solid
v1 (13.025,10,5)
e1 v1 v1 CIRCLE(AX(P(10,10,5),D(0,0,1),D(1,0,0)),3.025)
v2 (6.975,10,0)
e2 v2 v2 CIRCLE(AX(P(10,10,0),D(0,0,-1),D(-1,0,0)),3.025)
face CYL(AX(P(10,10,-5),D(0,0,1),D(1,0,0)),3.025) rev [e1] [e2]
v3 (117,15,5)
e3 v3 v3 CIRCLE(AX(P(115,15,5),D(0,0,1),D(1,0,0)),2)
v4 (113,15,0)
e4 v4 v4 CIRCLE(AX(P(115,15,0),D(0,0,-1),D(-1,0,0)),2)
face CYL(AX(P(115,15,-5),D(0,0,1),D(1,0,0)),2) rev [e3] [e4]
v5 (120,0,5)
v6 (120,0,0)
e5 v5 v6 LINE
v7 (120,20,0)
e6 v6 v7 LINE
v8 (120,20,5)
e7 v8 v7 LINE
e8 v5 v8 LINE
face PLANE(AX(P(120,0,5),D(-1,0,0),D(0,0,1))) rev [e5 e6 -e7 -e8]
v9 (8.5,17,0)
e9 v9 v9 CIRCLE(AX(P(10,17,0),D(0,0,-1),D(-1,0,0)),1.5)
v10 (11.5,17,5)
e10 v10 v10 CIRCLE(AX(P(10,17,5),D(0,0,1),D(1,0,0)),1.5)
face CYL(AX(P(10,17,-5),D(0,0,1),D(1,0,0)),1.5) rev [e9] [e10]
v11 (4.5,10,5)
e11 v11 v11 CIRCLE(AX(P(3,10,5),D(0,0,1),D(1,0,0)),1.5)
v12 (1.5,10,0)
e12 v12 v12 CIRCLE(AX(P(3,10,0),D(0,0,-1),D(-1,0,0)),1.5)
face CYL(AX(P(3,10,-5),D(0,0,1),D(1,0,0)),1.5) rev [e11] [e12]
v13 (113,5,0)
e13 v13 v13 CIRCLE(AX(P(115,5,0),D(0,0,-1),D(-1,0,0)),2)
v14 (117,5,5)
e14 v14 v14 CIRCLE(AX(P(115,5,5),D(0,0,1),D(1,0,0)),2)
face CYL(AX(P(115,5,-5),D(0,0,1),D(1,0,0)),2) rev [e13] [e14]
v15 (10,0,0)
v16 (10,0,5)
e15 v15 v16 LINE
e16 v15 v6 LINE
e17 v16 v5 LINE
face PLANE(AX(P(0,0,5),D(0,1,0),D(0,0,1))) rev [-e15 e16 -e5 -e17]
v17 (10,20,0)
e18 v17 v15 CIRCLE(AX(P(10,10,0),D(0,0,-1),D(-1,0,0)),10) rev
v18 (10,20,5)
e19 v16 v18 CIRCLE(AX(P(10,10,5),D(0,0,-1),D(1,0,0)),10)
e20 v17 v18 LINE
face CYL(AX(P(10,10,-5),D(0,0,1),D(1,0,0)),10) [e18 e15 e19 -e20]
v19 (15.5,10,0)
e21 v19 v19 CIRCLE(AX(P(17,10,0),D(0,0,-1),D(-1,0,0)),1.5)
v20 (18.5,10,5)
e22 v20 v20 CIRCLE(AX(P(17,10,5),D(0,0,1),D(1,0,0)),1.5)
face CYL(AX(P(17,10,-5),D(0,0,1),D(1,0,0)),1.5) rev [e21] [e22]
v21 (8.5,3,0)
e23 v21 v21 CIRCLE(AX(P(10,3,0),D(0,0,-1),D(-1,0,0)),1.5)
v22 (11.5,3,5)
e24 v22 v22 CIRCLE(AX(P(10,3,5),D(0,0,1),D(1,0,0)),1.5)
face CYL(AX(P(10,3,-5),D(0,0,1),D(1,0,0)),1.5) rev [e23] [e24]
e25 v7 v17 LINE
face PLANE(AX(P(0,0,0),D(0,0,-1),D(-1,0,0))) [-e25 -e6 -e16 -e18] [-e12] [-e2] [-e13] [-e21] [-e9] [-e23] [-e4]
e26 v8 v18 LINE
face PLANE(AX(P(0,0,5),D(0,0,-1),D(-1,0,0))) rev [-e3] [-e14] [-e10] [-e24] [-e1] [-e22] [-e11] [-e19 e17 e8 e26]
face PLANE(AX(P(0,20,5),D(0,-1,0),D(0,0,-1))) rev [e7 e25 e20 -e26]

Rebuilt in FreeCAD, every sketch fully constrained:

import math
import FreeCAD as App
import Part
import Sketcher

V = App.Vector

doc = App.newDocument("Part")
body = doc.addObject("PartDesign::Body", "Body")

sketch1 = body.newObject("Sketcher::SketchObject", "Sketch")
sketch1.AttachmentSupport = (doc.getObject("XY_Plane"), [""])
sketch1.MapMode = "FlatFace"
sketch1.addGeometry([
    Part.LineSegment(V(0, 20, 0), V(0, 0, 0)),
    Part.LineSegment(V(0, 0, 0), V(120, 0, 0)),
    Part.LineSegment(V(120, 0, 0), V(120, 20, 0)),
    Part.LineSegment(V(120, 20, 0), V(0, 20, 0)),
], False)
sketch1.addConstraint([
    Sketcher.Constraint("Coincident", 0, 2, 1, 1),
    Sketcher.Constraint("Coincident", 1, 2, 2, 1),
    Sketcher.Constraint("Coincident", 2, 2, 3, 1),
    Sketcher.Constraint("Coincident", 3, 2, 0, 1),
    Sketcher.Constraint("Vertical", 0),
    Sketcher.Constraint("Horizontal", 1),
    Sketcher.Constraint("Vertical", 2),
    Sketcher.Constraint("Horizontal", 3),
    Sketcher.Constraint("Coincident", 0, 2, -1, 1),
    Sketcher.Constraint("DistanceX", 1, 1, 1, 2, 120.0),
    Sketcher.Constraint("DistanceY", 0, 2, 0, 1, 20.0),
])
pad1 = body.newObject("PartDesign::Pad", "Pad")
pad1.Profile = sketch1
pad1.Length = 5

sketch2 = body.newObject("Sketcher::SketchObject", "Sketch001")
sketch2.AttachmentSupport = (doc.getObject("XY_Plane"), [""])
sketch2.MapMode = "FlatFace"
sketch2.AttachmentOffset = App.Placement(V(0, 0, 5), App.Rotation())
sketch2.addGeometry([
    Part.Circle(V(10, 17, 0), V(0, 0, 1), 1.5),
    Part.Circle(V(17, 10, 0), V(0, 0, 1), 1.5),
    Part.Circle(V(10, 10, 0), V(0, 0, 1), 3.025),
    Part.Circle(V(10, 3, 0), V(0, 0, 1), 1.5),
    Part.Circle(V(3, 10, 0), V(0, 0, 1), 1.5),
], False)
sketch2.addConstraint([
    Sketcher.Constraint("Equal", 0, 1),
    Sketcher.Constraint("Equal", 1, 3),
    Sketcher.Constraint("Equal", 3, 4),
    Sketcher.Constraint("Horizontal", 1, 3, 2, 3),
    Sketcher.Constraint("Horizontal", 2, 3, 4, 3),
    Sketcher.Constraint("Vertical", 0, 3, 2, 3),
    Sketcher.Constraint("Vertical", 2, 3, 3, 3),
    Sketcher.Constraint("Diameter", 0, 3.0),
    Sketcher.Constraint("Diameter", 2, 6.05),
    Sketcher.Constraint("DistanceX", -1, 1, 0, 3, 10.0),
    Sketcher.Constraint("DistanceY", -1, 1, 0, 3, 17.0),
    Sketcher.Constraint("DistanceX", -1, 1, 1, 3, 17.0),
    Sketcher.Constraint("DistanceY", -1, 1, 1, 3, 10.0),
    Sketcher.Constraint("DistanceY", -1, 1, 3, 3, 3.0),
    Sketcher.Constraint("DistanceX", -1, 1, 4, 3, 3.0),
])
pocket1 = body.newObject("PartDesign::Pocket", "Pocket")
pocket1.Profile = sketch2
pocket1.Length = 10

sketch3 = body.newObject("Sketcher::SketchObject", "Sketch002")
sketch3.AttachmentSupport = (doc.getObject("XY_Plane"), [""])
sketch3.MapMode = "FlatFace"
sketch3.AttachmentOffset = App.Placement(V(0, 0, 5), App.Rotation())
sketch3.addGeometry([
    Part.LineSegment(V(10, 20, 0), V(10, 30, 0)),
    Part.ArcOfCircle(Part.Circle(V(10, 10, 0), V(0, 0, 1), 20), math.radians(90), math.radians(270)),
    Part.LineSegment(V(10, -10, 0), V(10, 0, 0)),
    Part.ArcOfCircle(Part.Circle(V(10, 10, 0), V(0, 0, 1), 10), math.radians(90), math.radians(270)),
], False)
sketch3.addConstraint([
    Sketcher.Constraint("Coincident", 0, 2, 1, 1),
    Sketcher.Constraint("Coincident", 1, 2, 2, 1),
    Sketcher.Constraint("Coincident", 2, 2, 3, 2),
    Sketcher.Constraint("Coincident", 3, 1, 0, 1),
    Sketcher.Constraint("Vertical", 0),
    Sketcher.Constraint("Vertical", 2),
    Sketcher.Constraint("Coincident", 3, 3, 1, 3),
    Sketcher.Constraint("PointOnObject", 2, 2, -1),
    Sketcher.Constraint("Vertical", 3, 3, 0, 2),
    Sketcher.Constraint("Vertical", 0, 2, 1, 2),
    Sketcher.Constraint("Radius", 1, 20.0),
    Sketcher.Constraint("Radius", 3, 10.0),
    Sketcher.Constraint("DistanceX", -1, 1, 1, 3, 10.0),
])
pocket2 = body.newObject("PartDesign::Pocket", "Pocket001")
pocket2.Profile = sketch3
pocket2.Length = 10

sketch4 = body.newObject("Sketcher::SketchObject", "Sketch003")
sketch4.AttachmentSupport = (doc.getObject("XY_Plane"), [""])
sketch4.MapMode = "FlatFace"
sketch4.AttachmentOffset = App.Placement(V(0, 0, 5), App.Rotation())
sketch4.addGeometry([
    Part.Circle(V(115, 15, 0), V(0, 0, 1), 2),
    Part.Circle(V(115, 5, 0), V(0, 0, 1), 2),
], False)
sketch4.addConstraint([
    Sketcher.Constraint("Equal", 0, 1),
    Sketcher.Constraint("Vertical", 0, 3, 1, 3),
    Sketcher.Constraint("Diameter", 0, 4.0),
    Sketcher.Constraint("DistanceX", -1, 1, 0, 3, 115.0),
    Sketcher.Constraint("DistanceY", -1, 1, 0, 3, 15.0),
    Sketcher.Constraint("DistanceY", -1, 1, 1, 3, 5.0),
])
pocket3 = body.newObject("PartDesign::Pocket", "Pocket002")
pocket3.Profile = sketch4
pocket3.Length = 10

doc.recompute()
